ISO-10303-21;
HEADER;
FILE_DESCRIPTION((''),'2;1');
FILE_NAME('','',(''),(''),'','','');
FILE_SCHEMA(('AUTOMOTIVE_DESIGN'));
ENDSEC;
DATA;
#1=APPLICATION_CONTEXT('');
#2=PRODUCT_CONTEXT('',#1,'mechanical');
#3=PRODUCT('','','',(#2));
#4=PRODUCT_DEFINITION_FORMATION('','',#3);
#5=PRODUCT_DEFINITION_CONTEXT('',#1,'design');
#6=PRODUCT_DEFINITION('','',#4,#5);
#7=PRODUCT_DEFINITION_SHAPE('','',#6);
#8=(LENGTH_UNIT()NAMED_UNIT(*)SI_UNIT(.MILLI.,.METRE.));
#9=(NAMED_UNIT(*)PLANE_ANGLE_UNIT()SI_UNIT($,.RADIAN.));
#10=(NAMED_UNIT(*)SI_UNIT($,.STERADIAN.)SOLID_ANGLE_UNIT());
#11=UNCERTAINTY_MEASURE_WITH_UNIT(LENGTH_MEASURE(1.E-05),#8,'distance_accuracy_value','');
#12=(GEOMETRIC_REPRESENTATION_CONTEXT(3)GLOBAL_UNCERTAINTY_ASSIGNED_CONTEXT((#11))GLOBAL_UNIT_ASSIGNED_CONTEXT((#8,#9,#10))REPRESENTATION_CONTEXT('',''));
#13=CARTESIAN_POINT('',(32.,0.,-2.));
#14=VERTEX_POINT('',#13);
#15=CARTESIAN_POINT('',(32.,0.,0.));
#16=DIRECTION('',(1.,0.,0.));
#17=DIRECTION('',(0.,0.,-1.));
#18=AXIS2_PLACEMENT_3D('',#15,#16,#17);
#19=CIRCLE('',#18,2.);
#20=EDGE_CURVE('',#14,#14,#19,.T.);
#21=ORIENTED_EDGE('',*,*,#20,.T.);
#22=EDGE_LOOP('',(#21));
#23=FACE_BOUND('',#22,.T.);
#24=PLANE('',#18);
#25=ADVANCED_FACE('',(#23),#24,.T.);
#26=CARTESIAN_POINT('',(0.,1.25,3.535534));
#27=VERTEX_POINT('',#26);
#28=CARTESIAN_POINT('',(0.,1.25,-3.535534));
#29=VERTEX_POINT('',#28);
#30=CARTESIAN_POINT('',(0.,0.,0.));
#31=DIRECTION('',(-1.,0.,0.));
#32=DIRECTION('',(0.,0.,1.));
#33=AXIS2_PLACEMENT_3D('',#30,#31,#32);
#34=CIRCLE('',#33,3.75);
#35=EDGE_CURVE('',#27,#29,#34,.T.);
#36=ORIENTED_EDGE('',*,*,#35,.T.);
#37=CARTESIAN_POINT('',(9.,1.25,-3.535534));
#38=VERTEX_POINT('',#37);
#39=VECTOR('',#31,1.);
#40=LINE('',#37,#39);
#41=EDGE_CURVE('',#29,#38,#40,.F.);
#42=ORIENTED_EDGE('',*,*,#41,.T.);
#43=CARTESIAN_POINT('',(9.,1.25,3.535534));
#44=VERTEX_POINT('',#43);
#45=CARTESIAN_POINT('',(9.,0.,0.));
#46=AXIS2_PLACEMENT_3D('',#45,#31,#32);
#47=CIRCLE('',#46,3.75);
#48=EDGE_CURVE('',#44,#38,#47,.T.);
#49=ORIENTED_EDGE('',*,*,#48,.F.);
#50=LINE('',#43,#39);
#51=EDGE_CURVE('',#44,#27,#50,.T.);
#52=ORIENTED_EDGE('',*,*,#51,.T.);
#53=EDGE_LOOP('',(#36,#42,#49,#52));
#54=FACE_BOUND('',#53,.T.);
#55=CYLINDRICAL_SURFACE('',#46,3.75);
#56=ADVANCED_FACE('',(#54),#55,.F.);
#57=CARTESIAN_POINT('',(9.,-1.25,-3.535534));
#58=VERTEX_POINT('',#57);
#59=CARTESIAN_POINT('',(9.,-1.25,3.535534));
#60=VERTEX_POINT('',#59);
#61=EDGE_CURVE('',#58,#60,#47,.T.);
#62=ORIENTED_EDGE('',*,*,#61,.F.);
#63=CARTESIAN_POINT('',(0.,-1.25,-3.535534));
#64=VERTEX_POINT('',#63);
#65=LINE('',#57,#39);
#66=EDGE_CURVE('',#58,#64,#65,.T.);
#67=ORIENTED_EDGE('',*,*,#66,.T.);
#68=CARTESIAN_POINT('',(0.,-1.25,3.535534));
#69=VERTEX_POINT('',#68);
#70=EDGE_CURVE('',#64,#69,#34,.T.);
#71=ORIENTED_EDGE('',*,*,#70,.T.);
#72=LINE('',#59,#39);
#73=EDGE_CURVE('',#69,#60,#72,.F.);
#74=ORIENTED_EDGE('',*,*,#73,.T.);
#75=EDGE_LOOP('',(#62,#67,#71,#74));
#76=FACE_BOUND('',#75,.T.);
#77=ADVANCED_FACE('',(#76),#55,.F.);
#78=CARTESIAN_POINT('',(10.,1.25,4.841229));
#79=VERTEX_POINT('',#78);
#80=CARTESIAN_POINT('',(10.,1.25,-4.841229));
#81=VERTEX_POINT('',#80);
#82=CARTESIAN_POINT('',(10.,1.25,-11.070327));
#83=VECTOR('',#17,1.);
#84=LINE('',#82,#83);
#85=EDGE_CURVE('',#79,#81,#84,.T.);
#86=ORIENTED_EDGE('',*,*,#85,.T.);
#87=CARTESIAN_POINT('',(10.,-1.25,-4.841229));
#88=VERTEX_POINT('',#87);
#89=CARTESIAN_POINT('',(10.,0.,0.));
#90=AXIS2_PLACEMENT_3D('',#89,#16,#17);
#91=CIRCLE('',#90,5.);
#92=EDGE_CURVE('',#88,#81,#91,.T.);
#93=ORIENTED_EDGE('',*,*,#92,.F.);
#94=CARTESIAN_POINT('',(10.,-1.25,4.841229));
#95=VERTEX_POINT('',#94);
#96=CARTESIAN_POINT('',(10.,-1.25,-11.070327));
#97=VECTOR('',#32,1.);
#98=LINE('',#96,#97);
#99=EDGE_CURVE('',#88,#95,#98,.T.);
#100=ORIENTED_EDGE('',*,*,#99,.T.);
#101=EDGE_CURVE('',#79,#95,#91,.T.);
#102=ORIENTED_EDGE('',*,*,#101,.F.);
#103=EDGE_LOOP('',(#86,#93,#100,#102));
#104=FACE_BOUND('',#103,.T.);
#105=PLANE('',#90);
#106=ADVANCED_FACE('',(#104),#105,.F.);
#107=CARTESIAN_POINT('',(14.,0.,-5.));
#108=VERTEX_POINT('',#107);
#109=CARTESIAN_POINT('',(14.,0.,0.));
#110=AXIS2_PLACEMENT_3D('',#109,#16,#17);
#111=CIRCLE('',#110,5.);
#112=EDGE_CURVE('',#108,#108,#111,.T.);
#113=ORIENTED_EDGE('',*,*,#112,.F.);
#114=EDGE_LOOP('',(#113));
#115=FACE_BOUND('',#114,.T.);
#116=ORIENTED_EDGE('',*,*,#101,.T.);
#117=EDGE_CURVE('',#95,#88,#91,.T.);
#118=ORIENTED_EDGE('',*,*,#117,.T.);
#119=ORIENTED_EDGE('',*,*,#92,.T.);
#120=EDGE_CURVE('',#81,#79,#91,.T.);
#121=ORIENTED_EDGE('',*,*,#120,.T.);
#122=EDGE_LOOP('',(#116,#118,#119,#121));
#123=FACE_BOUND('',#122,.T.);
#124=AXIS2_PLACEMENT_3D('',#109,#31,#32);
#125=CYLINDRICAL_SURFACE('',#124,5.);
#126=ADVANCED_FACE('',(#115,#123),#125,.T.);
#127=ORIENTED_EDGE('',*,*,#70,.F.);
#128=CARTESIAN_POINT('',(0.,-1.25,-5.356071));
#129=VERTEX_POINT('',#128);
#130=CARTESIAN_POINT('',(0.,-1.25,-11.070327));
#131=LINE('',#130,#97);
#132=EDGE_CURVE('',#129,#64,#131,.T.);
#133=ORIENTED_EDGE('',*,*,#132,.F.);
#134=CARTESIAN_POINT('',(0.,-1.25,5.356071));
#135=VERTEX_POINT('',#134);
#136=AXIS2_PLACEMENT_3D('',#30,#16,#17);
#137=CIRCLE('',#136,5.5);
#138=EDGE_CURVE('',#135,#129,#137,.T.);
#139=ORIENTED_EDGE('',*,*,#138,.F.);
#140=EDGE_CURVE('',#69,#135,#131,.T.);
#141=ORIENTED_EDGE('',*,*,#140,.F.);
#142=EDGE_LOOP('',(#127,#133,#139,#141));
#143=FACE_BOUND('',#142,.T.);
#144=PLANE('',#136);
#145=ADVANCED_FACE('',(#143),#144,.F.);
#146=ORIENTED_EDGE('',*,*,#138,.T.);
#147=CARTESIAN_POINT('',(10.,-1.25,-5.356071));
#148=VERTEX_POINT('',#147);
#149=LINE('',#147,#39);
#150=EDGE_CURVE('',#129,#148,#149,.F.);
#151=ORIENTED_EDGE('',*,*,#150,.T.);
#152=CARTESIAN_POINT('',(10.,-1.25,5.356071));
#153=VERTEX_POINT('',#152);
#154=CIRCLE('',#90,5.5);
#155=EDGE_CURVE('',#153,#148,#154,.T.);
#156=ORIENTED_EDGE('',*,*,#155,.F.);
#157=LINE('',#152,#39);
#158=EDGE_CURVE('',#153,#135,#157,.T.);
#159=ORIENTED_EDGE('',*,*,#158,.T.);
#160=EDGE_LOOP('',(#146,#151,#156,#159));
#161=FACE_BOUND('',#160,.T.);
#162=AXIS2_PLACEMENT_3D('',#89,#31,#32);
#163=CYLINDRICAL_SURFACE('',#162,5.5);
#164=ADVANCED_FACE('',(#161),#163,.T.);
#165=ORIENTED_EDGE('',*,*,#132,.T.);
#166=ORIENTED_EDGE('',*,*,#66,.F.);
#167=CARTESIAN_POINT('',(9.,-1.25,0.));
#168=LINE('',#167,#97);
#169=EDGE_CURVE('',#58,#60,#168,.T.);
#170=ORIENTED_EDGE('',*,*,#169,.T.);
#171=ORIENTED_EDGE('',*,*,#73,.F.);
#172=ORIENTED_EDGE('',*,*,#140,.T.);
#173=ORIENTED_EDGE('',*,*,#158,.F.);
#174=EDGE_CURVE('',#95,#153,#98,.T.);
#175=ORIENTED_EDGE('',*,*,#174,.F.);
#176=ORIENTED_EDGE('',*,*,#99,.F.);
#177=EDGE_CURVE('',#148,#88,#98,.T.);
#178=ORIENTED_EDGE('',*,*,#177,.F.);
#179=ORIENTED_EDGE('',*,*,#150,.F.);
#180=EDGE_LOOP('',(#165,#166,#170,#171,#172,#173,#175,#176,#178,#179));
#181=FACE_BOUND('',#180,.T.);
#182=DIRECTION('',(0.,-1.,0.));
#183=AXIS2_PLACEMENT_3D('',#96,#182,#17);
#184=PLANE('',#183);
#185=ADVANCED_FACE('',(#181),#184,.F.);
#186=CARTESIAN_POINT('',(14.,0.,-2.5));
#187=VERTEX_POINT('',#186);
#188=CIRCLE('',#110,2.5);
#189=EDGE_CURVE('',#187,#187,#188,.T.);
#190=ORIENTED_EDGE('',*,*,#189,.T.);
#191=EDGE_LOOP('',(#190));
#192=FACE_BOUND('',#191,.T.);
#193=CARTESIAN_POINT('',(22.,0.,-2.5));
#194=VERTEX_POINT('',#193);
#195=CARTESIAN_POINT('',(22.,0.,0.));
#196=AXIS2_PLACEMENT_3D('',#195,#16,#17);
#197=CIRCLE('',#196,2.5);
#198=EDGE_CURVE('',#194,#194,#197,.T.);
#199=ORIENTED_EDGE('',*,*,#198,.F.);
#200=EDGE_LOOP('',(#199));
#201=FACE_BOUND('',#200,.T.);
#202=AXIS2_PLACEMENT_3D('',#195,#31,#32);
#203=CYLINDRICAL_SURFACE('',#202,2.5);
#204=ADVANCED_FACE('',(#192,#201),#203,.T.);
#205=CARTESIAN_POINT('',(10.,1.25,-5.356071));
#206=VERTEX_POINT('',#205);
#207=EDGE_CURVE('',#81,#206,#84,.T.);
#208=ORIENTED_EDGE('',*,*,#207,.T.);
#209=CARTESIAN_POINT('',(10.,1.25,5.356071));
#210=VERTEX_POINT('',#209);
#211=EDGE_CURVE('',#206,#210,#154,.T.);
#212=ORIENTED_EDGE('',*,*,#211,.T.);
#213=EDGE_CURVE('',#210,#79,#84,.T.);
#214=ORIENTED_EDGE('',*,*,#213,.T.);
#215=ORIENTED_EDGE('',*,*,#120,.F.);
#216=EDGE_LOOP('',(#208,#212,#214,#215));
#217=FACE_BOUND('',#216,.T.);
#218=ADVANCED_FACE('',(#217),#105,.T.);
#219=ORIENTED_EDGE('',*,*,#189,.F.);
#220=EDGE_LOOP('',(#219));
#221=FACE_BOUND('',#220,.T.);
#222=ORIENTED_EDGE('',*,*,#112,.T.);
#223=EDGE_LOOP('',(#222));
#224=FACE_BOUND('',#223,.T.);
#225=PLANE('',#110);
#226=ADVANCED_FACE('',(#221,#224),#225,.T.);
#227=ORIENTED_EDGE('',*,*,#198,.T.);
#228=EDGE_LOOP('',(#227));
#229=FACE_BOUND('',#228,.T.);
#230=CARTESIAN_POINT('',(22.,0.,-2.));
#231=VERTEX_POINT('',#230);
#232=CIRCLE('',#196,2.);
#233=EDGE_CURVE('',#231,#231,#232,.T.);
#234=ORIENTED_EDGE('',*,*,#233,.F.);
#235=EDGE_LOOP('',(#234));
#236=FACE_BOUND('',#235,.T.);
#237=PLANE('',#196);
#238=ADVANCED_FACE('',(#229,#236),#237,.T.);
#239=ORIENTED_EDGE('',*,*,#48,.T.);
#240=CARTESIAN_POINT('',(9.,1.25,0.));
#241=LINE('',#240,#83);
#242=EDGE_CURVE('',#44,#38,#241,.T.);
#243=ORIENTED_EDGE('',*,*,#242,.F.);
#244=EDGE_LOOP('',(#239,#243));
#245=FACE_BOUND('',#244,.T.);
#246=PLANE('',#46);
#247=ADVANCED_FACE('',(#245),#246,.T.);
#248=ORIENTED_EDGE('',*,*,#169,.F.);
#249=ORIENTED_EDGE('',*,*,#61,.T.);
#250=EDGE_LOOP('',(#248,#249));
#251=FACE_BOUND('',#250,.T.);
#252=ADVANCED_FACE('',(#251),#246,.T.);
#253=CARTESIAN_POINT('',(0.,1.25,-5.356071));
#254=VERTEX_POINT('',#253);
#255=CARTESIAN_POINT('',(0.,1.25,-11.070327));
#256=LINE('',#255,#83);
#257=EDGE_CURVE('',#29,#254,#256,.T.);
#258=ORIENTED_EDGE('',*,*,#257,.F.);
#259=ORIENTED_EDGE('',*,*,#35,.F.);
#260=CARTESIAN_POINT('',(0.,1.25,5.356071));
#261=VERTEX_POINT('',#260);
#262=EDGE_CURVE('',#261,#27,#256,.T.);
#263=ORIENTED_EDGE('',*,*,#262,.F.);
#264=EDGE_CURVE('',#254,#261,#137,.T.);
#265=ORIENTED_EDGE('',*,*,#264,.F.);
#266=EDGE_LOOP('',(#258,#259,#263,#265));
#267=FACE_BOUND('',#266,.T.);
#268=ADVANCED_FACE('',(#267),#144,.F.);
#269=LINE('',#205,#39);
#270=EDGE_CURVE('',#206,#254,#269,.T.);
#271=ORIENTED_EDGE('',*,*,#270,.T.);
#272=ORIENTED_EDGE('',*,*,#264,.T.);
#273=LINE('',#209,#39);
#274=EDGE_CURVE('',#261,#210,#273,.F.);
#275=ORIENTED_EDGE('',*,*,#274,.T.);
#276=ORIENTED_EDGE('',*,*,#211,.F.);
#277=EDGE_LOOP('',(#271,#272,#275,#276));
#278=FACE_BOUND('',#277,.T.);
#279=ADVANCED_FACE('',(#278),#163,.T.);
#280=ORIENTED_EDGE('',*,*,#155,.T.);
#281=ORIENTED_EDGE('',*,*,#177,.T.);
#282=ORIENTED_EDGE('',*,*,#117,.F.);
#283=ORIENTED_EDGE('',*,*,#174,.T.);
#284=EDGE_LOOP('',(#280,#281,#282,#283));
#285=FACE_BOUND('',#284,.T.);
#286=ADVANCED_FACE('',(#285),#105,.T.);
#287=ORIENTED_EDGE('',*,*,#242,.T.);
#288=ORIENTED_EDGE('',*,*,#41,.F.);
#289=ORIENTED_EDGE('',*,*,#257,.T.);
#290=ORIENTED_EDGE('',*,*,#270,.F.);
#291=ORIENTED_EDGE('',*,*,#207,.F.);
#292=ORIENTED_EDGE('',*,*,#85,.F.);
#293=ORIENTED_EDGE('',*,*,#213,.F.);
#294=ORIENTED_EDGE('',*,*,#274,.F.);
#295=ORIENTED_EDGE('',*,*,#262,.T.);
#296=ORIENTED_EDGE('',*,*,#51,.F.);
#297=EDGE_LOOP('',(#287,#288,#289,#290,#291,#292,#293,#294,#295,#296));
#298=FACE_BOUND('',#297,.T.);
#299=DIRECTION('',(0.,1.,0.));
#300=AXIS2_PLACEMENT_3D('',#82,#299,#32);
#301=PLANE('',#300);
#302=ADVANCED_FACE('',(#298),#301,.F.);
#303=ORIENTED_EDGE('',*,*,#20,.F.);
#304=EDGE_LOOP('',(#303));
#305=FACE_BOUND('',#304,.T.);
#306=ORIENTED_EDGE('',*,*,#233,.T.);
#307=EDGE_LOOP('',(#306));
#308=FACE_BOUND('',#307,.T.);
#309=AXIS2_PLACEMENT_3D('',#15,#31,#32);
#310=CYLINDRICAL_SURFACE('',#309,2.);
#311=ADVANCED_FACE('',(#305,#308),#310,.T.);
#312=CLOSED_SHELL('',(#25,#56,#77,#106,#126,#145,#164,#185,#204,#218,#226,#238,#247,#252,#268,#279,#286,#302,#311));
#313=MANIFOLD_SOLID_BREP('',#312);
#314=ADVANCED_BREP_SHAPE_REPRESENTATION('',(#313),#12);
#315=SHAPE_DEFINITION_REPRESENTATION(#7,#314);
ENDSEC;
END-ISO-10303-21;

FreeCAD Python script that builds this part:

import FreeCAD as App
import Part
import Sketcher

V = App.Vector
Q = App.Units.Quantity


def add_polygon(sketch, points):
    """Adds a closed chain of lines whose ends are joined by coincident constraints."""
    first, n = sketch.GeometryCount, len(points)
    for a, b in zip(points, points[1:] + points[:1]):
        sketch.addGeometry(Part.LineSegment(App.Vector(*a, 0), App.Vector(*b, 0)), False)
    for i in range(n):
        sketch.addConstraint(Sketcher.Constraint("Coincident", first + i, 2, first + (i + 1) % n, 1))

doc = App.newDocument("Part")
body = doc.addObject("PartDesign::Body", "Body")

# Sketch on YZ plane
sketch1 = body.newObject("Sketcher::SketchObject", "Sketch")
sketch1.AttachmentSupport = (doc.getObject("YZ_Plane"), [""])
sketch1.MapMode = "FlatFace"
sketch1.addGeometry(Part.Circle(V(0, 0, 0), V(0, 0, 1), 6), False)
sketch1.addConstraint([
    Sketcher.Constraint("Coincident", 0, 3, -1, 1),
    Sketcher.Constraint("Diameter", 0, Q("11 mm")),
])
pad1 = body.newObject("PartDesign::Pad", "Pad")
pad1.Profile = sketch1
pad1.Length = 10

# Sketch on YZ plane
sketch2 = body.newObject("Sketcher::SketchObject", "Sketch001")
sketch2.AttachmentSupport = (doc.getObject("YZ_Plane"), [""])
sketch2.MapMode = "FlatFace"
sketch2.AttachmentOffset = App.Placement(V(0, 0, 10), App.Rotation())
sketch2.addGeometry(Part.Circle(V(0, 0, 0), V(0, 0, 1), 5), False)
sketch2.addConstraint([
    Sketcher.Constraint("Coincident", 0, 3, -1, 1),
    Sketcher.Constraint("Diameter", 0, Q("10 mm")),
])
pad2 = body.newObject("PartDesign::Pad", "Pad001")
pad2.Profile = sketch2
pad2.Length = 4

# Sketch on YZ plane
sketch3 = body.newObject("Sketcher::SketchObject", "Sketch002")
sketch3.AttachmentSupport = (doc.getObject("YZ_Plane"), [""])
sketch3.MapMode = "FlatFace"
sketch3.AttachmentOffset = App.Placement(V(0, 0, 14), App.Rotation())
sketch3.addGeometry(Part.Circle(V(0, 0, 0), V(0, 0, 1), 2.5), False)
sketch3.addConstraint([
    Sketcher.Constraint("Coincident", 0, 3, -1, 1),
    Sketcher.Constraint("Diameter", 0, Q("5 mm")),
])
pad3 = body.newObject("PartDesign::Pad", "Pad002")
pad3.Profile = sketch3
pad3.Length = 8

# Sketch on YZ plane
sketch4 = body.newObject("Sketcher::SketchObject", "Sketch003")
sketch4.AttachmentSupport = (doc.getObject("YZ_Plane"), [""])
sketch4.MapMode = "FlatFace"
sketch4.AttachmentOffset = App.Placement(V(0, 0, 22), App.Rotation())
sketch4.addGeometry(Part.Circle(V(0, 0, 0), V(0, 0, 1), 2), False)
sketch4.addConstraint([
    Sketcher.Constraint("Coincident", 0, 3, -1, 1),
    Sketcher.Constraint("Diameter", 0, Q("4 mm")),
])
pad4 = body.newObject("PartDesign::Pad", "Pad003")
pad4.Profile = sketch4
pad4.Length = 10

# Sketch on YZ plane
sketch5 = body.newObject("Sketcher::SketchObject", "Sketch004")
sketch5.AttachmentSupport = (doc.getObject("YZ_Plane"), [""])
sketch5.MapMode = "FlatFace"
sketch5.addGeometry(Part.Circle(V(0, 0, 0), V(0, 0, 1), 3.8), False)
sketch5.addConstraint([
    Sketcher.Constraint("Coincident", 0, 3, -1, 1),
    Sketcher.Constraint("Diameter", 0, Q("7.5 mm")),
])
pocket1 = body.newObject("PartDesign::Pocket", "Pocket")
pocket1.Profile = sketch5
pocket1.Length = 9
pocket1.Reversed = True

# Sketch on YZ plane
sketch6 = body.newObject("Sketcher::SketchObject", "Sketch005")
sketch6.AttachmentSupport = (doc.getObject("YZ_Plane"), [""])
sketch6.MapMode = "FlatFace"
add_polygon(sketch6, [(1.2, -11.1), (-1.2, -11.1), (-1.2, 14.4), (1.2, 14.4)])  # lines 0-3
sketch6.addConstraint([
    Sketcher.Constraint("Horizontal", 0),
    Sketcher.Constraint("Vertical", 1),
    Sketcher.Constraint("Horizontal", 2),
    Sketcher.Constraint("Vertical", 3),
    Sketcher.Constraint("DistanceX", 0, 2, 0, 1, Q("2.5 mm")),
    Sketcher.Constraint("DistanceX", 0, 2, -1, 1, Q("1.25 mm")),
    Sketcher.Constraint("DistanceY", 1, 1, 1, 2, Q("25.507414 mm")),
    Sketcher.Constraint("DistanceY", 0, 2, -1, 1, Q("11.070327 mm")),
])
pocket2 = body.newObject("PartDesign::Pocket", "Pocket001")
pocket2.Profile = sketch6
pocket2.Length = 10
pocket2.Reversed = True

doc.recompute()
